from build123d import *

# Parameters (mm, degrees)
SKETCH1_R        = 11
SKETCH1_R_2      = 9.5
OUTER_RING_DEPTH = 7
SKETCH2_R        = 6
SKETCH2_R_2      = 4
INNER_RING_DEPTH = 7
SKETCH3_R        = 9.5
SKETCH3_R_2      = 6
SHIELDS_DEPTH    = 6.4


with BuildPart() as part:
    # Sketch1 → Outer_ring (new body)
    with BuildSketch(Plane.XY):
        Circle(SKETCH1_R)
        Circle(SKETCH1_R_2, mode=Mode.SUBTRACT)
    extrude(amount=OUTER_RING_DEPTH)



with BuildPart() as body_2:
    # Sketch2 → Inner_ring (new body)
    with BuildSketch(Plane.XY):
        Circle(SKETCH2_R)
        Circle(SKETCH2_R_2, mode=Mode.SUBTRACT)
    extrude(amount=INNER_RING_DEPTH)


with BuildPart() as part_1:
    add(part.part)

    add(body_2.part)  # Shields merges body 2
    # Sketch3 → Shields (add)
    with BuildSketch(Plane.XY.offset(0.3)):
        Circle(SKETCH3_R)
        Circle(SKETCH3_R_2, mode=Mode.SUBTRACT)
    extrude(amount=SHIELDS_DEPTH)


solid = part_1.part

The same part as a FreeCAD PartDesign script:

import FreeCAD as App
import Part
import Sketcher
Q = App.Units.Quantity

doc = App.newDocument("Part")
body = doc.addObject("PartDesign::Body", "Body")

# Sketch on XY plane
sketch1 = doc.addObject("Sketcher::SketchObject", "Sketch")
body.addObject(sketch1)
sketch1.AttachmentSupport = (doc.XY_Plane, [""])
sketch1.MapMode = "FlatFace"
sketch1.addGeometry(Part.Circle(App.Vector(0, 0, 0), App.Vector(0, 0, 1), 11), False)
sketch1.addGeometry(Part.Circle(App.Vector(0, 0, 0), App.Vector(0, 0, 1), 10), False)
sketch1.addConstraint(Sketcher.Constraint("Coincident", 0, 3, -1, 1))
sketch1.addConstraint(Sketcher.Constraint("Coincident", 1, 3, -1, 1))
sketch1.addConstraint(Sketcher.Constraint("Diameter", 0, Q("22 mm")))
sketch1.addConstraint(Sketcher.Constraint("Diameter", 1, Q("19 mm")))
pad1 = doc.addObject("PartDesign::Pad", "Pad")
body.addObject(pad1)
pad1.Profile = sketch1
pad1.Length = 7
body2 = doc.addObject("PartDesign::Body", "Body001")

# Sketch on XY plane
sketch2 = doc.addObject("Sketcher::SketchObject", "Sketch001")
body2.addObject(sketch2)
sketch2.AttachmentSupport = (doc.getObject("XY_Plane001"), [""])
sketch2.MapMode = "FlatFace"
sketch2.addGeometry(Part.Circle(App.Vector(0, 0, 0), App.Vector(0, 0, 1), 6), False)
sketch2.addGeometry(Part.Circle(App.Vector(0, 0, 0), App.Vector(0, 0, 1), 4), False)
sketch2.addConstraint(Sketcher.Constraint("Coincident", 0, 3, -1, 1))
sketch2.addConstraint(Sketcher.Constraint("Coincident", 1, 3, -1, 1))
sketch2.addConstraint(Sketcher.Constraint("Diameter", 0, Q("12 mm")))
sketch2.addConstraint(Sketcher.Constraint("Diameter", 1, Q("8 mm")))
pad2 = doc.addObject("PartDesign::Pad", "Pad001")
body2.addObject(pad2)
pad2.Profile = sketch2
pad2.Length = 7
body.AllowCompound = True
doc.recompute()

boolean = doc.addObject("PartDesign::Boolean", "Boolean")
body.addObject(boolean)
boolean.Type = "Fuse"
boolean.addObjects([body2])

# Sketch on XY plane
sketch3 = doc.addObject("Sketcher::SketchObject", "Sketch002")
body.addObject(sketch3)
sketch3.AttachmentSupport = (doc.XY_Plane, [""])
sketch3.MapMode = "FlatFace"
sketch3.AttachmentOffset = App.Placement(App.Vector(0, 0, 0.3), App.Rotation())
sketch3.addGeometry(Part.Circle(App.Vector(0, 0, 0), App.Vector(0, 0, 1), 10), False)
sketch3.addGeometry(Part.Circle(App.Vector(0, 0, 0), App.Vector(0, 0, 1), 6), False)
sketch3.addConstraint(Sketcher.Constraint("Coincident", 0, 3, -1, 1))
sketch3.addConstraint(Sketcher.Constraint("Coincident", 1, 3, -1, 1))
sketch3.addConstraint(Sketcher.Constraint("Diameter", 0, Q("19 mm")))
sketch3.addConstraint(Sketcher.Constraint("Diameter", 1, Q("12 mm")))
pad3 = doc.addObject("PartDesign::Pad", "Pad002")
body.addObject(pad3)
pad3.Profile = sketch3
pad3.Length = 6.4

doc.recompute()
